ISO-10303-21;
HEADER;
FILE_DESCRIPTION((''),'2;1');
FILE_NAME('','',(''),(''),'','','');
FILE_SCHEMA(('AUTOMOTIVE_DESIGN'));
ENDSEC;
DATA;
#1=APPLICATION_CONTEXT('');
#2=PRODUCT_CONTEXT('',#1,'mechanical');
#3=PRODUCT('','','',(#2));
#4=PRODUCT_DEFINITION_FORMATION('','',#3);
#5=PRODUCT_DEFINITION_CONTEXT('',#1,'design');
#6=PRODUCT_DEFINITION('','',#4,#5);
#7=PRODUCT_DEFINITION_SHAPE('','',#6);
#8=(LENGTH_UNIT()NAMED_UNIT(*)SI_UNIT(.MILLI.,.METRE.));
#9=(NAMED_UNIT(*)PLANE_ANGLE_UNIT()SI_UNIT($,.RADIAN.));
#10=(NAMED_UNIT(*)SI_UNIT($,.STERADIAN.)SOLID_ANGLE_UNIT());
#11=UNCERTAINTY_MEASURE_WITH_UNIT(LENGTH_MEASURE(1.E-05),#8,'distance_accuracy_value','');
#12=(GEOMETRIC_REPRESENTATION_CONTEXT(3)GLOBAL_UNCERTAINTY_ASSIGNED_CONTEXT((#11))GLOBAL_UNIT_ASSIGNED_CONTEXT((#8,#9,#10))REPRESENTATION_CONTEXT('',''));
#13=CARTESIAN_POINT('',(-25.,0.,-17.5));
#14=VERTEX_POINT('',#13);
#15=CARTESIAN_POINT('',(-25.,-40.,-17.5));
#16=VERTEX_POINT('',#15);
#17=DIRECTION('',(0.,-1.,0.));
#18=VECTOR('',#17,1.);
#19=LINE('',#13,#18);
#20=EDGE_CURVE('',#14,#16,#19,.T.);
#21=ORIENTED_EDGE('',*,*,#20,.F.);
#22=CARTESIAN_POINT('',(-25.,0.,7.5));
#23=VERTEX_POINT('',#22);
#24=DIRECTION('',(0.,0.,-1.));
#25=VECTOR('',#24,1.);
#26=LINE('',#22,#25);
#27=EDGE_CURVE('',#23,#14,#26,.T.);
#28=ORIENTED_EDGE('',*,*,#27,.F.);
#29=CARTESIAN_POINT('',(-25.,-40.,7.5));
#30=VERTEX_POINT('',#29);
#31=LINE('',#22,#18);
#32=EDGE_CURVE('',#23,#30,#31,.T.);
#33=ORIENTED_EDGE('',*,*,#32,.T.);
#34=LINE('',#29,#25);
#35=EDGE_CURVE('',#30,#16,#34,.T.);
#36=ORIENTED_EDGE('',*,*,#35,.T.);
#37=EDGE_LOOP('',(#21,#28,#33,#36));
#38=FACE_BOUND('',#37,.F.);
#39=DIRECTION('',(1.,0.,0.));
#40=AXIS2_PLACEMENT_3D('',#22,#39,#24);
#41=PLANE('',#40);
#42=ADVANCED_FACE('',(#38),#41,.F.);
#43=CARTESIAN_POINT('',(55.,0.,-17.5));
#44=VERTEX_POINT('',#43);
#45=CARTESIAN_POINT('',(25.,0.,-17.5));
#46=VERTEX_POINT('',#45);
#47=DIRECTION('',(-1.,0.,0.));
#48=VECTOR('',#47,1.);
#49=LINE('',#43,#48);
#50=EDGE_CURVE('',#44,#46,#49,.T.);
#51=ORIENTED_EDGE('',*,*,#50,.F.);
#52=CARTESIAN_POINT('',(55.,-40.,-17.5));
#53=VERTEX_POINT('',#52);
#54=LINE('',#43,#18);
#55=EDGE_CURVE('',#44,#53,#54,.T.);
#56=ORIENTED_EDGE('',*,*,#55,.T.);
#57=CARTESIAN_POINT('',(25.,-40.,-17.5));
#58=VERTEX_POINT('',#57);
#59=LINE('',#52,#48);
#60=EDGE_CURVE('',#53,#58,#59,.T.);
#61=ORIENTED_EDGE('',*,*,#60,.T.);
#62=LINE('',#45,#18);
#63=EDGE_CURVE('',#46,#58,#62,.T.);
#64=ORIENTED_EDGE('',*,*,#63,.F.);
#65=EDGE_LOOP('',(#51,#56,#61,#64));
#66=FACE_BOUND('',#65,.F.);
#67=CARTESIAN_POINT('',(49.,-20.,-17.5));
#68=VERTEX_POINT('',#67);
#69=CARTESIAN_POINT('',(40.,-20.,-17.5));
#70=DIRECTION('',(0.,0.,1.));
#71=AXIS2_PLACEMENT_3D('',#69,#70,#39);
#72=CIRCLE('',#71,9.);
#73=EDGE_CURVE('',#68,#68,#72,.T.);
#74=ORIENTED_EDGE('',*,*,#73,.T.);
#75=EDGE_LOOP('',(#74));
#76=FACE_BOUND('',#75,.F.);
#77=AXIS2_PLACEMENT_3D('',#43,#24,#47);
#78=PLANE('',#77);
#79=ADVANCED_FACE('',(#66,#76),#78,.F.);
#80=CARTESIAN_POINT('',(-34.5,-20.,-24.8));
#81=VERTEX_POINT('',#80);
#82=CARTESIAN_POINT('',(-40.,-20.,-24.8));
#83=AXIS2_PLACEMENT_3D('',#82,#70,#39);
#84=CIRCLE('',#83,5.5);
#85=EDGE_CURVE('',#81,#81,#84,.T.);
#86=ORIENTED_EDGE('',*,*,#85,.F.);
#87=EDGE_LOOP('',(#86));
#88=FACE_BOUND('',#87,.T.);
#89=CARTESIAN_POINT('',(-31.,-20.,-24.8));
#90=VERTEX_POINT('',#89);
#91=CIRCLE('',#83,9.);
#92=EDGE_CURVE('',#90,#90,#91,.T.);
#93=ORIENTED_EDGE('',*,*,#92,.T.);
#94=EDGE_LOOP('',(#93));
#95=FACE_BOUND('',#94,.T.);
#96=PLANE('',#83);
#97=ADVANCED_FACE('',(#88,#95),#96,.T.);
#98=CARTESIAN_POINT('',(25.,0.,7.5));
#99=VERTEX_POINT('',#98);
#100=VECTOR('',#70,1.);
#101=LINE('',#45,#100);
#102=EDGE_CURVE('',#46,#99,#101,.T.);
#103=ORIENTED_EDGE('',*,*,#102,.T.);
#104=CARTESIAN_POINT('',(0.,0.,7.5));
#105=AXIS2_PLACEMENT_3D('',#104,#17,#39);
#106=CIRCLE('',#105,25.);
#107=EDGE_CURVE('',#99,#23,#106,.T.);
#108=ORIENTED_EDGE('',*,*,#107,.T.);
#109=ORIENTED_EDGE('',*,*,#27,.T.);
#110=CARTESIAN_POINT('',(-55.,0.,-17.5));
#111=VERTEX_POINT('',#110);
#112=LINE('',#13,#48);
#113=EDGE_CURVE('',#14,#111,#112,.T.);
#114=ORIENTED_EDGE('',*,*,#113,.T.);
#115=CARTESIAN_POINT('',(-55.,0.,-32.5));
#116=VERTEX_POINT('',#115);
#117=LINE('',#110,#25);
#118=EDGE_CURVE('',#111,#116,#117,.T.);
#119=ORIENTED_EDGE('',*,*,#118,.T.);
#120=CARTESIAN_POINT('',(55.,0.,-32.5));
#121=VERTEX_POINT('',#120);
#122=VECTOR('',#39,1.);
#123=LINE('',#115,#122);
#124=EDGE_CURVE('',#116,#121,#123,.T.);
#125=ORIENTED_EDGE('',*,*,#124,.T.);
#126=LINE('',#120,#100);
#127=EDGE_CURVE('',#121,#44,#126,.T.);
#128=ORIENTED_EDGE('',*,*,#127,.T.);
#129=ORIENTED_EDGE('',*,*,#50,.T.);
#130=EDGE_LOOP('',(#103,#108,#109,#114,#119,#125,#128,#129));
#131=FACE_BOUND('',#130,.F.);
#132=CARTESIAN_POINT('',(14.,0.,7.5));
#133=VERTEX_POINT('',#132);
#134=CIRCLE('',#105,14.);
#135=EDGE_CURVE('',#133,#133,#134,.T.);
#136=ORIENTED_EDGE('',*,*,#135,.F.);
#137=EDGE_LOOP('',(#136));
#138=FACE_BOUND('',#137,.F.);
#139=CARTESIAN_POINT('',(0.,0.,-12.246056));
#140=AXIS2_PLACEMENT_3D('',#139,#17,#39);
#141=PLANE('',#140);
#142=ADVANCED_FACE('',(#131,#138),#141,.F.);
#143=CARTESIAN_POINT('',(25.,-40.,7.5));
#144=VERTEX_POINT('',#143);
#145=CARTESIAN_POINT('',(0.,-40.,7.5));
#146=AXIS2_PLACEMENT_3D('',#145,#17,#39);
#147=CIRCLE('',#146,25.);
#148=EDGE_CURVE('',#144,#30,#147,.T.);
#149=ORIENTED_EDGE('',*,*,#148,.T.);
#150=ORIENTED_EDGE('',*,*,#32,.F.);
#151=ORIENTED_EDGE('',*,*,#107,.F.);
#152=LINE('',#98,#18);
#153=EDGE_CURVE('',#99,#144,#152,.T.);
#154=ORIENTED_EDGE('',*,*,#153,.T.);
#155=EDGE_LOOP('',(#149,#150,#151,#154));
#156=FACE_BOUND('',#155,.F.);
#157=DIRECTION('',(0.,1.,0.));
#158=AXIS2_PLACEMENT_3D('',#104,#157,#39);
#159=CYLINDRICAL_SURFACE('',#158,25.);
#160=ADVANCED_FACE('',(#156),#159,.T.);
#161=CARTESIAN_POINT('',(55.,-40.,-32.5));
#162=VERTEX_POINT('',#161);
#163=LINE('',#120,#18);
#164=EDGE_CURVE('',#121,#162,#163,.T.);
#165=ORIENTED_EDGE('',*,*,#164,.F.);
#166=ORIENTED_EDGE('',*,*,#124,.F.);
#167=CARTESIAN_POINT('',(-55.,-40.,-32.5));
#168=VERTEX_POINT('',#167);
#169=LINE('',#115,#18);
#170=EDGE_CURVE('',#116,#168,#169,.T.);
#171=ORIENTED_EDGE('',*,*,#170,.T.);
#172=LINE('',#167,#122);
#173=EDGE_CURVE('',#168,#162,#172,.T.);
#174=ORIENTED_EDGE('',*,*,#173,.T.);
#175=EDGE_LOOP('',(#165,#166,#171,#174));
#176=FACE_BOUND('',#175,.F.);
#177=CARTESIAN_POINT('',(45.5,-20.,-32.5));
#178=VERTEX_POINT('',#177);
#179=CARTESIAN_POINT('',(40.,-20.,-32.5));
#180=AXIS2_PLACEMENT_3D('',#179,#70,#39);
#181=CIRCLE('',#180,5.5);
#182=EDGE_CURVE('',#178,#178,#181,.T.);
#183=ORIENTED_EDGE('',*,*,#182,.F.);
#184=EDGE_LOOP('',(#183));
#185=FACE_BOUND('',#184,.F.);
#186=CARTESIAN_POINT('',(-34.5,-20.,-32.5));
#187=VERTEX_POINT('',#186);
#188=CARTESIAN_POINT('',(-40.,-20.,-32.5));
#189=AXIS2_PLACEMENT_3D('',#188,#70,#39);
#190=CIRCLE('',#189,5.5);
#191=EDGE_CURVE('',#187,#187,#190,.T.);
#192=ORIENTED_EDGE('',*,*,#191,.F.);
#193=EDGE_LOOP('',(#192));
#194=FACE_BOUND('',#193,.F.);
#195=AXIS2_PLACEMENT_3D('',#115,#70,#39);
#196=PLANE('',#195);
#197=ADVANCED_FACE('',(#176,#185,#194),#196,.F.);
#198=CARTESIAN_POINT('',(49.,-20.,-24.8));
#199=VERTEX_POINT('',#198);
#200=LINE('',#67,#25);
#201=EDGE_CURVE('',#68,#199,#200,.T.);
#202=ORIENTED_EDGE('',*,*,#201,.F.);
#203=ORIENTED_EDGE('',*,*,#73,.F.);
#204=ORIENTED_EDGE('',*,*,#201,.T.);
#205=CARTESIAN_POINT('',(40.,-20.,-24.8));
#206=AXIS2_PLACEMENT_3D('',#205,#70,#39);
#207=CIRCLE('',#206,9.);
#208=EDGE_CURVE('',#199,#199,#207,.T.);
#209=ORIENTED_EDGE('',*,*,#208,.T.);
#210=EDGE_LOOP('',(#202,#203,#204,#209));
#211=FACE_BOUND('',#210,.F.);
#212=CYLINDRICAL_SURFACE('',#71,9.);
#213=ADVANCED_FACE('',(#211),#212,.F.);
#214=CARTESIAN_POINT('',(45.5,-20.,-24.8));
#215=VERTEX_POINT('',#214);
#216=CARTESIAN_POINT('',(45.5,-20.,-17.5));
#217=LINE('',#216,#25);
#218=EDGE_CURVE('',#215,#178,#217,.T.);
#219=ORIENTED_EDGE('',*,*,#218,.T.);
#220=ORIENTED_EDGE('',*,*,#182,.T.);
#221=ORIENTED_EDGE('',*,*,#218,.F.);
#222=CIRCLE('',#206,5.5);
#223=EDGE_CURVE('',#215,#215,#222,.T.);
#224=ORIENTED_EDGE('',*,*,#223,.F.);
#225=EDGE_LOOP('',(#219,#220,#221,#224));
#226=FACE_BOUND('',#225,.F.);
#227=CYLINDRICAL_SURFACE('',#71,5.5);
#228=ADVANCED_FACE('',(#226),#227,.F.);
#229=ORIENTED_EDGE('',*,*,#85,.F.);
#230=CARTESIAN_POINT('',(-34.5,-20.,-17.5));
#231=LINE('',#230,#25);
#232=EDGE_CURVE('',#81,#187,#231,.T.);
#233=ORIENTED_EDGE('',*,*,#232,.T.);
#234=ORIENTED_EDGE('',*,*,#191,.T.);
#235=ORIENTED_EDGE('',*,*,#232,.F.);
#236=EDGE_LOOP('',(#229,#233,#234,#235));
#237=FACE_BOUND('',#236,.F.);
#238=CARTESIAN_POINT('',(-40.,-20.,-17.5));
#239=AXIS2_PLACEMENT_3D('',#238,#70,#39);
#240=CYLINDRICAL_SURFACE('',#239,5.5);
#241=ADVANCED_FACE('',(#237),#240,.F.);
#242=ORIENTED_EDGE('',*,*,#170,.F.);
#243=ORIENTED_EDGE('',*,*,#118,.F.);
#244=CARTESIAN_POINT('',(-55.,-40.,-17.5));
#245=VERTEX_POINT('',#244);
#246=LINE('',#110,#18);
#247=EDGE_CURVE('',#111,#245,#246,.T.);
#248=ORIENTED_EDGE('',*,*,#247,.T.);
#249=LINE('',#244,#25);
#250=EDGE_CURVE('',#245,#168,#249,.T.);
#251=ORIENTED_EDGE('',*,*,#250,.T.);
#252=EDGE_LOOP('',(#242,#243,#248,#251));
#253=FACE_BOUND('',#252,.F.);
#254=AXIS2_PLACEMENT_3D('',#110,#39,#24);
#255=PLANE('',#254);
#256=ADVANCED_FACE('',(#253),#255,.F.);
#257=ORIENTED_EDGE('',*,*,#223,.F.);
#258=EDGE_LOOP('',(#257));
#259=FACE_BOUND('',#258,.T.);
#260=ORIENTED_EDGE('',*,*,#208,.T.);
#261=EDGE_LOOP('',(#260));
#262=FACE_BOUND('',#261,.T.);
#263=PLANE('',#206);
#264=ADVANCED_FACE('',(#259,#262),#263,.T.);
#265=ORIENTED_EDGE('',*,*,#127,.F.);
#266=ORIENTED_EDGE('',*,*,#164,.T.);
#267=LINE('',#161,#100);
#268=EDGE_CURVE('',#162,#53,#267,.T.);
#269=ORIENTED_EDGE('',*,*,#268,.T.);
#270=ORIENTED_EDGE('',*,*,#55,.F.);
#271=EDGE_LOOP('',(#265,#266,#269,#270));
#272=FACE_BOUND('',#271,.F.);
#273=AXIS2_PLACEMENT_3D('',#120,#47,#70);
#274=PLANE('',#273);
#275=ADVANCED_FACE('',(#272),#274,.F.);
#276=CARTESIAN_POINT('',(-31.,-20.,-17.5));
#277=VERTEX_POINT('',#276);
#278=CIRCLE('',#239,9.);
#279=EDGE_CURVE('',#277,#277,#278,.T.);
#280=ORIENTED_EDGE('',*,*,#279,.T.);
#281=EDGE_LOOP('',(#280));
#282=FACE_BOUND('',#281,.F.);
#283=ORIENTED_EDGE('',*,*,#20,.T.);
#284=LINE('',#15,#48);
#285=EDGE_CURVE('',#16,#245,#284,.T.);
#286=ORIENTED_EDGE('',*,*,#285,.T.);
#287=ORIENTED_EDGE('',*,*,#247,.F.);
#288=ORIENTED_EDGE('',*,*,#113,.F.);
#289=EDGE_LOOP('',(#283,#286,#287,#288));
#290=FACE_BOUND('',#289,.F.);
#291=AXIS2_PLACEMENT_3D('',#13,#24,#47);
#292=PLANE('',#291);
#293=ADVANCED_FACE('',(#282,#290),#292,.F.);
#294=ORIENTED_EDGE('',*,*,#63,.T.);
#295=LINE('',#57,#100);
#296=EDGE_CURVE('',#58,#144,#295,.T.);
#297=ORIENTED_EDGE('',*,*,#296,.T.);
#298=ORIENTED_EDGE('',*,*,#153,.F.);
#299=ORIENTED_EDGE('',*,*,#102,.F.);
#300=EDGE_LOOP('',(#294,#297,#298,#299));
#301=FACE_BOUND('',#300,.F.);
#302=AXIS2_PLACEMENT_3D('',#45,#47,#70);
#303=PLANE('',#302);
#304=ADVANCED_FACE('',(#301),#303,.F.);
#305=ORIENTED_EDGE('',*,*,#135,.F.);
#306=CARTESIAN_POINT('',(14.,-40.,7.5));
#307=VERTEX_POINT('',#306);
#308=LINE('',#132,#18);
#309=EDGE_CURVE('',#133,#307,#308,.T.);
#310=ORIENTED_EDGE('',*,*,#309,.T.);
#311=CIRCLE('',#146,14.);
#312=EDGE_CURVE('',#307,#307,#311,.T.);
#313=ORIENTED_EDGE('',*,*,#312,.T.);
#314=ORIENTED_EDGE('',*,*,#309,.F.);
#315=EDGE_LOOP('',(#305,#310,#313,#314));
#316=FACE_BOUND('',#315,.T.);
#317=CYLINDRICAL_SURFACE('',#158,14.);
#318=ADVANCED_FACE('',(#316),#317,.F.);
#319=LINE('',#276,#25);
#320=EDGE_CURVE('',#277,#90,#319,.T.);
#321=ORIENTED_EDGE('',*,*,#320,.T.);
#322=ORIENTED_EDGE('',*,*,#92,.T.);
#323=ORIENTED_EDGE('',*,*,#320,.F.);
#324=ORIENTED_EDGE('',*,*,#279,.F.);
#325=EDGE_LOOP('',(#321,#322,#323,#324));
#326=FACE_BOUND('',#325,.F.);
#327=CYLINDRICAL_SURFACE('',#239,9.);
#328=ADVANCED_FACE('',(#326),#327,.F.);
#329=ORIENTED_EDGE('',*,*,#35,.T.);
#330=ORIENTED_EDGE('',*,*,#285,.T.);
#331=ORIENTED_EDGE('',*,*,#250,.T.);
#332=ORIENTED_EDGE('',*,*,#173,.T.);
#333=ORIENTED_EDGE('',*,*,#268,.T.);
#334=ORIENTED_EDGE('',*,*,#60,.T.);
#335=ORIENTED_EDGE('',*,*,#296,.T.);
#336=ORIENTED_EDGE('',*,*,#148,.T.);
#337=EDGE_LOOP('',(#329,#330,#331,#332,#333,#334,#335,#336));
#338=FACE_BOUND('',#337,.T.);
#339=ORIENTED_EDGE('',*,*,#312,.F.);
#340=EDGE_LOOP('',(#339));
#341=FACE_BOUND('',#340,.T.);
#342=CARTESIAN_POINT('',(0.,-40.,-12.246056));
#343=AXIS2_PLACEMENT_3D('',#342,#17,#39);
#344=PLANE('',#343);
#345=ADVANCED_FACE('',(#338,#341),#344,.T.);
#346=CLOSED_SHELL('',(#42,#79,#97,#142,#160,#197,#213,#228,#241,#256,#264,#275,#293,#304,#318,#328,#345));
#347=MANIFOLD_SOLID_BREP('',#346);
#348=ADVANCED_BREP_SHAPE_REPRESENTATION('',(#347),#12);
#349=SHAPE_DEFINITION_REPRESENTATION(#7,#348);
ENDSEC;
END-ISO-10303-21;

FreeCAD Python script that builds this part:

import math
import FreeCAD as App
import Part
import Sketcher

V = App.Vector

doc = App.newDocument("Part")
params = doc.addObject("Spreadsheet::Sheet", "Params")
for row, (alias, value) in enumerate([
    ("sketch1_diameter", "28 mm"),
    ("sketch1_radius", "25 mm"),
    ("sketch1_width", "110 mm"),
    ("sketch1_height", "15 mm"),
    ("sketch1_height2", "25 mm"),
    ("pad1_length", "40 mm"),
    ("sketch2_diameter", "11 mm"),
    ("pocket1_length", "15 mm"),
    ("sketch3_diameter", "18 mm"),
    ("sketch3_diameter2", "11 mm"),
    ("pocket2_length", "7.3 mm"),
], start=1):
    params.set(f"A{row}", alias)
    params.set(f"B{row}", "=" + value)
    params.setAlias(f"B{row}", alias)

body = doc.addObject("PartDesign::Body", "Body")

sketch1 = body.newObject("Sketcher::SketchObject", "Sketch")
sketch1.AttachmentSupport = (doc.getObject("XZ_Plane"), [""])
sketch1.MapMode = "FlatFace"
sketch1.addGeometry(Part.LineSegment(V(-55, -18, 0), V(-55, -32, 0)), False)
sketch1.addGeometry(Part.LineSegment(V(-55, -32, 0), V(55, -32, 0)), False)
sketch1.addGeometry(Part.LineSegment(V(55, -32, 0), V(55, -18, 0)), False)
sketch1.addGeometry(Part.LineSegment(V(55, -18, 0), V(25, -18, 0)), False)
sketch1.addGeometry(Part.LineSegment(V(25, -18, 0), V(25, 8, 0)), False)
sketch1.addGeometry(Part.ArcOfCircle(Part.Circle(V(0, 8, 0), V(0, 0, 1), 25), math.radians(0), math.radians(180)), False)
sketch1.addGeometry(Part.LineSegment(V(-25, 8, 0), V(-25, -18, 0)), False)
sketch1.addGeometry(Part.LineSegment(V(-25, -18, 0), V(-55, -18, 0)), False)
sketch1.addGeometry(Part.Circle(V(0, 8, 0), V(0, 0, 1), 14), False)
sketch1.addConstraint(Sketcher.Constraint("Coincident", 0, 2, 1, 1))
sketch1.addConstraint(Sketcher.Constraint("Coincident", 1, 2, 2, 1))
sketch1.addConstraint(Sketcher.Constraint("Coincident", 2, 2, 3, 1))
sketch1.addConstraint(Sketcher.Constraint("Coincident", 3, 2, 4, 1))
sketch1.addConstraint(Sketcher.Constraint("Tangent", 4, 2, 5, 1))
sketch1.addConstraint(Sketcher.Constraint("Tangent", 5, 2, 6, 1))
sketch1.addConstraint(Sketcher.Constraint("Coincident", 6, 2, 7, 1))
sketch1.addConstraint(Sketcher.Constraint("Coincident", 7, 2, 0, 1))
sketch1.addConstraint(Sketcher.Constraint("Vertical", 0))
sketch1.addConstraint(Sketcher.Constraint("Horizontal", 1))
sketch1.addConstraint(Sketcher.Constraint("Vertical", 2))
sketch1.addConstraint(Sketcher.Constraint("Horizontal", 3))
sketch1.addConstraint(Sketcher.Constraint("Vertical", 4))
sketch1.addConstraint(Sketcher.Constraint("Vertical", 6))
sketch1.addConstraint(Sketcher.Constraint("Horizontal", 7))
sketch1.addConstraint(Sketcher.Constraint("Coincident", 8, 3, 5, 3))
sketch1.addConstraint(Sketcher.Constraint("Symmetric", 3, 2, 6, 2, -2))
sketch1.addConstraint(Sketcher.Constraint("Equal", 3, 7))
sketch1.addConstraint(Sketcher.Constraint("Diameter", 8, 28.0))
sketch1.addConstraint(Sketcher.Constraint("Radius", 5, 25.0))
sketch1.addConstraint(Sketcher.Constraint("DistanceX", 1, 1, 1, 2, 110.0))
sketch1.addConstraint(Sketcher.Constraint("DistanceY", 0, 2, 0, 1, 15.0))
sketch1.addConstraint(Sketcher.Constraint("DistanceY", 4, 1, 4, 2, 25.0))
sketch1.addConstraint(Sketcher.Constraint("DistanceY", -1, 1, 5, 3, 7.5))
sketch1.setExpression("Constraints[18]", "Params.sketch1_diameter")
sketch1.setExpression("Constraints[19]", "Params.sketch1_radius")
sketch1.setExpression("Constraints[20]", "Params.sketch1_width")
sketch1.setExpression("Constraints[21]", "Params.sketch1_height")
sketch1.setExpression("Constraints[22]", "Params.sketch1_height2")
pad1 = body.newObject("PartDesign::Pad", "Pad")
pad1.Profile = sketch1
pad1.setExpression("Length", "Params.pad1_length")

sketch2 = body.newObject("Sketcher::SketchObject", "Sketch001")
sketch2.AttachmentSupport = (doc.getObject("XY_Plane"), [""])
sketch2.MapMode = "FlatFace"
sketch2.AttachmentOffset = App.Placement(V(0, 0, -17.5), App.Rotation())
sketch2.addGeometry(Part.Circle(V(-40, -20, 0), V(0, 0, 1), 6), False)
sketch2.addGeometry(Part.Circle(V(40, -20, 0), V(0, 0, 1), 6), False)
sketch2.addConstraint(Sketcher.Constraint("Equal", 0, 1))
sketch2.addConstraint(Sketcher.Constraint("Symmetric", 0, 3, 1, 3, -2))
sketch2.addConstraint(Sketcher.Constraint("Diameter", 0, 11.0))
sketch2.addConstraint(Sketcher.Constraint("DistanceX", 0, 3, -1, 1, 40.0))
sketch2.addConstraint(Sketcher.Constraint("DistanceY", 0, 3, -1, 1, 20.0))
sketch2.setExpression("Constraints[2]", "Params.sketch2_diameter")
pocket1 = body.newObject("PartDesign::Pocket", "Pocket")
pocket1.Profile = sketch2
pocket1.setExpression("Length", "Params.pocket1_length")

sketch3 = body.newObject("Sketcher::SketchObject", "Sketch002")
sketch3.AttachmentSupport = (doc.getObject("XY_Plane"), [""])
sketch3.MapMode = "FlatFace"
sketch3.AttachmentOffset = App.Placement(V(0, 0, -17.5), App.Rotation())
sketch3.addGeometry(Part.Circle(V(-40, -20, 0), V(0, 0, 1), 9), False)
sketch3.addGeometry(Part.Circle(V(-40, -20, 0), V(0, 0, 1), 6), False)
sketch3.addGeometry(Part.Circle(V(40, -20, 0), V(0, 0, 1), 9), False)
sketch3.addGeometry(Part.Circle(V(40, -20, 0), V(0, 0, 1), 6), False)
sketch3.addConstraint(Sketcher.Constraint("Coincident", 1, 3, 0, 3))
sketch3.addConstraint(Sketcher.Constraint("Coincident", 3, 3, 2, 3))
sketch3.addConstraint(Sketcher.Constraint("Equal", 0, 2))
sketch3.addConstraint(Sketcher.Constraint("Equal", 1, 3))
sketch3.addConstraint(Sketcher.Constraint("Symmetric", 0, 3, 2, 3, -2))
sketch3.addConstraint(Sketcher.Constraint("Diameter", 0, 18.0))
sketch3.addConstraint(Sketcher.Constraint("Diameter", 1, 11.0))
sketch3.addConstraint(Sketcher.Constraint("DistanceX", 0, 3, -1, 1, 40.0))
sketch3.addConstraint(Sketcher.Constraint("DistanceY", 0, 3, -1, 1, 20.0))
sketch3.setExpression("Constraints[5]", "Params.sketch3_diameter")
sketch3.setExpression("Constraints[6]", "Params.sketch3_diameter2")
pocket2 = body.newObject("PartDesign::Pocket", "Pocket001")
pocket2.Profile = sketch3
pocket2.setExpression("Length", "Params.pocket2_length")

doc.recompute()
